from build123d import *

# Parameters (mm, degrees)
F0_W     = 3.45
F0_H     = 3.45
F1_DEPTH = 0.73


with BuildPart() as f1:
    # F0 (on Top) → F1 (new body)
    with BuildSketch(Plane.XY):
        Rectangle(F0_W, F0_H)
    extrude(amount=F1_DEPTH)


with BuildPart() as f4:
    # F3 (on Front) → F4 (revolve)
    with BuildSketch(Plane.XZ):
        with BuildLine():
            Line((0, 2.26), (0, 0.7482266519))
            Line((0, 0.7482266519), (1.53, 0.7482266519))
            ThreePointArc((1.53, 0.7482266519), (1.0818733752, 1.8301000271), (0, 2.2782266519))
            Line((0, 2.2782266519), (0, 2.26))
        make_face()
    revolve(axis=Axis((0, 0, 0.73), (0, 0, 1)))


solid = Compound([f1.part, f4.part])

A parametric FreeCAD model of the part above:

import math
import FreeCAD as App
import Part
import Sketcher
from FreeCAD import Vector


def add_polygon(sketch, points):
    """Adds a closed chain of lines whose ends are joined by coincident constraints."""
    first, n = sketch.GeometryCount, len(points)
    for a, b in zip(points, points[1:] + points[:1]):
        sketch.addGeometry(Part.LineSegment(App.Vector(*a, 0), App.Vector(*b, 0)), False)
    for i in range(n):
        sketch.addConstraint(Sketcher.Constraint("Coincident", first + i, 2, first + (i + 1) % n, 1))

doc = App.newDocument("Part")
body = doc.addObject("PartDesign::Body", "Body")

sketch1 = body.newObject("Sketcher::SketchObject", "Sketch")
sketch1.AttachmentSupport = (doc.getObject("XY_Plane"), [""])
sketch1.MapMode = "FlatFace"
add_polygon(sketch1, [(-1.7, 1.7), (-1.7, -1.7), (1.7, -1.7), (1.7, 1.7)])
sketch1.addConstraint(Sketcher.Constraint("Vertical", 0))
sketch1.addConstraint(Sketcher.Constraint("Horizontal", 1))
sketch1.addConstraint(Sketcher.Constraint("Vertical", 2))
sketch1.addConstraint(Sketcher.Constraint("Horizontal", 3))
sketch1.addConstraint(Sketcher.Constraint("Symmetric", 0, 2, 2, 2, -1, 1))
sketch1.addConstraint(Sketcher.Constraint("Equal", 3, 0))
sketch1.addConstraint(Sketcher.Constraint("DistanceX", 1, 1, 1, 2, 3.45))
pad1 = body.newObject("PartDesign::Pad", "Pad")
pad1.Profile = sketch1
pad1.Length = 0.73
body2 = doc.addObject("PartDesign::Body", "Body001")

sketch2 = body2.newObject("Sketcher::SketchObject", "Sketch001")
sketch2.AttachmentSupport = (doc.getObject("XZ_Plane001"), [""])
sketch2.MapMode = "FlatFace"
sketch2.addGeometry(Part.LineSegment(Vector(0, 0.7, 0), Vector(1.5, 0.7, 0)), False)
sketch2.addGeometry(Part.ArcOfCircle(Part.Circle(Vector(0, 0.7, 0), Vector(0, 0, 1), 1.5), math.radians(0), math.radians(90)), False)
sketch2.addGeometry(Part.LineSegment(Vector(0, 2.3, 0), Vector(0, 0.7, 0)), False)
sketch2.addConstraint(Sketcher.Constraint("Coincident", 0, 2, 1, 1))
sketch2.addConstraint(Sketcher.Constraint("Coincident", 1, 2, 2, 1))
sketch2.addConstraint(Sketcher.Constraint("Coincident", 2, 2, 0, 1))
sketch2.addConstraint(Sketcher.Constraint("Horizontal", 0))
sketch2.addConstraint(Sketcher.Constraint("Vertical", 2))
sketch2.addConstraint(Sketcher.Constraint("Coincident", 2, 2, 1, 3))
sketch2.addConstraint(Sketcher.Constraint("PointOnObject", 1, 3, -2))
sketch2.addConstraint(Sketcher.Constraint("Radius", 1, 1.53))
sketch2.addConstraint(Sketcher.Constraint("DistanceY", -1, 1, 1, 3, 0.748227))
revolution = body2.newObject("PartDesign::Revolution", "Revolution")
revolution.Profile = sketch2
revolution.ReferenceAxis = (sketch2, ["V_Axis"])
revolution.Angle = 360

doc.recompute()
